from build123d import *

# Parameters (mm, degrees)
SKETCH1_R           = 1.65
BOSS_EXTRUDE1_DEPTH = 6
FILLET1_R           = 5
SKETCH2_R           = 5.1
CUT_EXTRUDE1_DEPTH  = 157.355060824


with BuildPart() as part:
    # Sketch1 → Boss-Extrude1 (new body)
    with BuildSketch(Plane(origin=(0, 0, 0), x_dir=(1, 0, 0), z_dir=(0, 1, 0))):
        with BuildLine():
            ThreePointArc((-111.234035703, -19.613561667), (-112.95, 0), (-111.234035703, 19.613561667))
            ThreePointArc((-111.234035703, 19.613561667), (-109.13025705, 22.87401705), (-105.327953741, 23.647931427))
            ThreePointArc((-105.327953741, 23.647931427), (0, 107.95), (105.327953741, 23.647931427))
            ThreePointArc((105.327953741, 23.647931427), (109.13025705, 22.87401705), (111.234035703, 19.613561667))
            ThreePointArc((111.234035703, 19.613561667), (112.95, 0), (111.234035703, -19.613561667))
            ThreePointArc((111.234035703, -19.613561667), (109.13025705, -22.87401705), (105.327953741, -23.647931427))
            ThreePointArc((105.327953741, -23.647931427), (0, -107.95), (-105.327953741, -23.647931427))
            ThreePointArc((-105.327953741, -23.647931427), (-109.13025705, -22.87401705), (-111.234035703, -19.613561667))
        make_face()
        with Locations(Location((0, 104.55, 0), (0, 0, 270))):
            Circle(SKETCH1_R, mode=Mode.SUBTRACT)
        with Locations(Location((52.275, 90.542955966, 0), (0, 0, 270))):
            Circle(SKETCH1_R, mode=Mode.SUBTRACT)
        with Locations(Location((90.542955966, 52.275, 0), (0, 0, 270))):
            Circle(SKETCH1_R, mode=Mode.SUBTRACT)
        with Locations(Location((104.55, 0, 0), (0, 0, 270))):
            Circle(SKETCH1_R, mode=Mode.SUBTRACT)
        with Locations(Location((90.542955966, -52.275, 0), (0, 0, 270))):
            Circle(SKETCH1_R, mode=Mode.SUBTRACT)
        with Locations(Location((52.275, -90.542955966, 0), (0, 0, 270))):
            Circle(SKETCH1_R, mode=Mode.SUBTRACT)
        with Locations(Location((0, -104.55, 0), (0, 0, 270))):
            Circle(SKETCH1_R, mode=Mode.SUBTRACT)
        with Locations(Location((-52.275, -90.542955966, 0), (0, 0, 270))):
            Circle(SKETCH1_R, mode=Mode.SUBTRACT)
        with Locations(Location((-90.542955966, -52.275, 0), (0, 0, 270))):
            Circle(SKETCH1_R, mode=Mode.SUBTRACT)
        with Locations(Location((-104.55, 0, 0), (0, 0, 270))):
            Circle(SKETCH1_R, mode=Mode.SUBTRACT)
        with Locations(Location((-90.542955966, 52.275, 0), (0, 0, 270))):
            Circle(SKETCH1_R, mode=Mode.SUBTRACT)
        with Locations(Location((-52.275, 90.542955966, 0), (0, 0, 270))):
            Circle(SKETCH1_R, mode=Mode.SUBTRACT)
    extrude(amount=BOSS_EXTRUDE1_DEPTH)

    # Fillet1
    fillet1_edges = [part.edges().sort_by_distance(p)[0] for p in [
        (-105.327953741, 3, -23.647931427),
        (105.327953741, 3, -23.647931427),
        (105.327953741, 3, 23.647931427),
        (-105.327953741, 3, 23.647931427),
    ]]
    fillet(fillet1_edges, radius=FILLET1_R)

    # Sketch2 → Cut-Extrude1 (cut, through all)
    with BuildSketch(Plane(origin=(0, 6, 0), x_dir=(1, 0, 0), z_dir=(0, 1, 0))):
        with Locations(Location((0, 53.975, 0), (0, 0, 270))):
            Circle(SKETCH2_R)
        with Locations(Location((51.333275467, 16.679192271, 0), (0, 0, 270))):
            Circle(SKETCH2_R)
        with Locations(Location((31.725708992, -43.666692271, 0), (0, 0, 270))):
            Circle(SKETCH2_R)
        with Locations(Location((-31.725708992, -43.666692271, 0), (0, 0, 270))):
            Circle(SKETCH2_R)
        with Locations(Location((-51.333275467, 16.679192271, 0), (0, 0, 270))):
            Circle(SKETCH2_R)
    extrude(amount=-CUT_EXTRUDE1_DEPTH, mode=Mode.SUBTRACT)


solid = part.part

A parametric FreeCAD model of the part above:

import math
import FreeCAD as App
import Part
import Sketcher

V = App.Vector


def edges_at(feature, points):
    """Names of the edges that pass closest to the given points."""
    edges = feature.Shape.Edges
    near = lambda p: min(range(len(edges)), key=lambda i: edges[i].distToShape(Part.Vertex(*p))[0])
    return sorted({f"Edge{near(p) + 1}" for p in points})

doc = App.newDocument("Part")
params = doc.addObject("Spreadsheet::Sheet", "Params")
for row, (alias, value) in enumerate([
    ("sketch1_radius", "5 mm"),
    ("sketch1_diameter", "3.3 mm"),
    ("sketch1_radius2", "112.95 mm"),
    ("sketch1_radius3", "107.95 mm"),
    ("pad1_length", "6 mm"),
    ("fillet_radius", "5 mm"),
    ("sketch2_diameter", "10.2 mm"),
], start=1):
    params.set(f"A{row}", alias)
    params.set(f"B{row}", "=" + value)
    params.setAlias(f"B{row}", alias)

body = doc.addObject("PartDesign::Body", "Body")

sketch1 = body.newObject("Sketcher::SketchObject", "Sketch")
sketch1.AttachmentSupport = (doc.getObject("XZ_Plane"), [""])
sketch1.MapMode = "FlatFace"
sketch1.addGeometry([
    Part.ArcOfCircle(Part.Circle(V(0, 0, 0), V(0, 0, 1), 112.95), math.radians(170), math.radians(190)),
    Part.ArcOfCircle(Part.Circle(V(-106.309997, 18.745321, 0), V(0, 0, 1), 5), math.radians(78.672976), math.radians(170)),
    Part.ArcOfCircle(Part.Circle(V(0, 0, 0), V(0, 0, 1), 107.95), math.radians(12.654048), math.radians(167.345952)),
    Part.ArcOfCircle(Part.Circle(V(106.309997, 18.745321, 0), V(0, 0, 1), 5), math.radians(10), math.radians(101.327024)),
    Part.ArcOfCircle(Part.Circle(V(0, 0, 0), V(0, 0, 1), 112.95), math.radians(-10), math.radians(10)),
    Part.ArcOfCircle(Part.Circle(V(106.309997, -18.745321, 0), V(0, 0, 1), 5), math.radians(-101.327024), math.radians(-10)),
    Part.ArcOfCircle(Part.Circle(V(0, 0, 0), V(0, 0, 1), 107.95), math.radians(-167.345952), math.radians(-12.654048)),
    Part.ArcOfCircle(Part.Circle(V(-106.309997, -18.745321, 0), V(0, 0, 1), 5), math.radians(-170), math.radians(-78.672976)),
    Part.Circle(V(52.275, 90.542956, 0), V(0, 0, 1), 1.65),
    Part.Circle(V(90.542956, 52.275, 0), V(0, 0, 1), 1.65),
    Part.Circle(V(0, 104.55, 0), V(0, 0, 1), 1.65),
    Part.Circle(V(-52.275, 90.542956, 0), V(0, 0, 1), 1.65),
    Part.Circle(V(-90.542956, 52.275, 0), V(0, 0, 1), 1.65),
    Part.Circle(V(104.55, 0, 0), V(0, 0, 1), 1.65),
    Part.Circle(V(90.542956, -52.275, 0), V(0, 0, 1), 1.65),
    Part.Circle(V(52.275, -90.542956, 0), V(0, 0, 1), 1.65),
    Part.Circle(V(-104.55, 0, 0), V(0, 0, 1), 1.65),
    Part.Circle(V(-90.542956, -52.275, 0), V(0, 0, 1), 1.65),
    Part.Circle(V(0, -104.55, 0), V(0, 0, 1), 1.65),
    Part.Circle(V(-52.275, -90.542956, 0), V(0, 0, 1), 1.65),
], False)
sketch1.addConstraint([
    Sketcher.Constraint("Tangent", 0, 1, 1, 2),
    Sketcher.Constraint("Coincident", 1, 1, 2, 2),
    Sketcher.Constraint("Coincident", 2, 1, 3, 2),
    Sketcher.Constraint("Tangent", 3, 1, 4, 2),
    Sketcher.Constraint("Tangent", 4, 1, 5, 2),
    Sketcher.Constraint("Coincident", 5, 1, 6, 2),
    Sketcher.Constraint("Coincident", 6, 1, 7, 2),
    Sketcher.Constraint("Tangent", 7, 1, 0, 2),
    Sketcher.Constraint("Coincident", 0, 3, -1, 1),
    Sketcher.Constraint("Coincident", 2, 3, -1, 1),
    Sketcher.Constraint("Coincident", 4, 3, -1, 1),
    Sketcher.Constraint("Coincident", 6, 3, -1, 1),
    Sketcher.Constraint("Equal", 1, 3),
    Sketcher.Constraint("Equal", 0, 4),
    Sketcher.Constraint("Equal", 3, 5),
    Sketcher.Constraint("Equal", 2, 6),
    Sketcher.Constraint("Equal", 5, 7),
    Sketcher.Constraint("Equal", 8, 9),
    Sketcher.Constraint("Equal", 9, 10),
    Sketcher.Constraint("Equal", 10, 11),
    Sketcher.Constraint("Equal", 11, 12),
    Sketcher.Constraint("Equal", 12, 13),
    Sketcher.Constraint("Equal", 13, 14),
    Sketcher.Constraint("Equal", 14, 15),
    Sketcher.Constraint("Equal", 15, 16),
    Sketcher.Constraint("Equal", 16, 17),
    Sketcher.Constraint("Equal", 17, 18),
    Sketcher.Constraint("Equal", 18, 19),
    Sketcher.Constraint("Symmetric", 12, 3, 14, 3, -1, 1),
    Sketcher.Constraint("Symmetric", 11, 3, 15, 3, -1, 1),
    Sketcher.Constraint("Symmetric", 13, 3, 16, 3, -1, 1),
    Sketcher.Constraint("Symmetric", 9, 3, 17, 3, -1, 1),
    Sketcher.Constraint("Symmetric", 10, 3, 18, 3, -1, 1),
    Sketcher.Constraint("Symmetric", 8, 3, 19, 3, -1, 1),
    Sketcher.Constraint("Symmetric", 8, 3, 11, 3, -2),
    Sketcher.Constraint("Symmetric", 9, 3, 12, 3, -2),
    Sketcher.Constraint("PointOnObject", 10, 3, -2),
    Sketcher.Constraint("PointOnObject", 13, 3, -1),
    Sketcher.Constraint("Horizontal", 1, 3, 3, 3),
    Sketcher.Constraint("Horizontal", 5, 3, 7, 3),
    Sketcher.Constraint("Vertical", 3, 3, 5, 3),
    Sketcher.Constraint("Radius", 1, 5.0),
    Sketcher.Constraint("Diameter", 8, 3.3),
    Sketcher.Constraint("Radius", 0, 112.95),
    Sketcher.Constraint("Radius", 2, 107.95),
    Sketcher.Constraint("DistanceY", -1, 1, 10, 3, 104.55),
    Sketcher.Constraint("DistanceX", -1, 1, 13, 3, 104.55),
    Sketcher.Constraint("DistanceX", 11, 3, 8, 3, 104.55),
    Sketcher.Constraint("DistanceY", 14, 3, 9, 3, 104.55),
    Sketcher.Constraint("DistanceY", -1, 1, 1, 3, 18.745321),
    Sketcher.Constraint("DistanceX", 9, 3, 3, 3, 15.767041),
    Sketcher.Constraint("DistanceY", -1, 1, 8, 3, 90.542956),
])
sketch1.setExpression("Constraints[41]", "Params.sketch1_radius")
sketch1.setExpression("Constraints[42]", "Params.sketch1_diameter")
sketch1.setExpression("Constraints[43]", "Params.sketch1_radius2")
sketch1.setExpression("Constraints[44]", "Params.sketch1_radius3")
pad1 = body.newObject("PartDesign::Pad", "Pad")
pad1.Profile = sketch1
pad1.setExpression("Length", "Params.pad1_length")
pad1.Reversed = True
doc.recompute()

fillet = body.newObject("PartDesign::Fillet", "Fillet")
fillet.Base = (pad1, edges_at(pad1, [
    (-105.328, 3, -23.648),
    (105.328, 3, -23.648),
    (105.328, 3, 23.648),
    (-105.328, 3, 23.648),
]))
fillet.setExpression("Radius", "Params.fillet_radius")

sketch2 = body.newObject("Sketcher::SketchObject", "Sketch001")
sketch2.AttachmentSupport = (doc.getObject("XZ_Plane"), [""])
sketch2.MapMode = "FlatFace"
sketch2.AttachmentOffset = App.Placement(V(0, 0, -6), App.Rotation())
sketch2.addGeometry([
    Part.Circle(V(0, -53.975, 0), V(0, 0, 1), 5.1),
    Part.Circle(V(51.333275, -16.679192, 0), V(0, 0, 1), 5.1),
    Part.Circle(V(31.725709, 43.666692, 0), V(0, 0, 1), 5.1),
    Part.Circle(V(-31.725709, 43.666692, 0), V(0, 0, 1), 5.1),
    Part.Circle(V(-51.333275, -16.679192, 0), V(0, 0, 1), 5.1),
], False)
sketch2.addConstraint([
    Sketcher.Constraint("Equal", 0, 1),
    Sketcher.Constraint("Equal", 1, 2),
    Sketcher.Constraint("Equal", 2, 3),
    Sketcher.Constraint("Equal", 3, 4),
    Sketcher.Constraint("Symmetric", 2, 3, 3, 3, -2),
    Sketcher.Constraint("Symmetric", 1, 3, 4, 3, -2),
    Sketcher.Constraint("PointOnObject", 0, 3, -2),
    Sketcher.Constraint("Diameter", 0, 10.2),
    Sketcher.Constraint("DistanceY", 0, 3, -1, 1, 53.975),
    Sketcher.Constraint("DistanceX", -1, 1, 2, 3, 31.725709),
    Sketcher.Constraint("DistanceX", 4, 3, 1, 3, 102.666551),
    Sketcher.Constraint("DistanceY", 1, 3, -1, 1, 16.679192),
    Sketcher.Constraint("DistanceY", -1, 1, 2, 3, 43.666692),
])
sketch2.setExpression("Constraints[7]", "Params.sketch2_diameter")
pocket1 = body.newObject("PartDesign::Pocket", "Pocket")
pocket1.Profile = sketch2
pocket1.Type = "ThroughAll"
pocket1.Reversed = True

doc.recompute()
